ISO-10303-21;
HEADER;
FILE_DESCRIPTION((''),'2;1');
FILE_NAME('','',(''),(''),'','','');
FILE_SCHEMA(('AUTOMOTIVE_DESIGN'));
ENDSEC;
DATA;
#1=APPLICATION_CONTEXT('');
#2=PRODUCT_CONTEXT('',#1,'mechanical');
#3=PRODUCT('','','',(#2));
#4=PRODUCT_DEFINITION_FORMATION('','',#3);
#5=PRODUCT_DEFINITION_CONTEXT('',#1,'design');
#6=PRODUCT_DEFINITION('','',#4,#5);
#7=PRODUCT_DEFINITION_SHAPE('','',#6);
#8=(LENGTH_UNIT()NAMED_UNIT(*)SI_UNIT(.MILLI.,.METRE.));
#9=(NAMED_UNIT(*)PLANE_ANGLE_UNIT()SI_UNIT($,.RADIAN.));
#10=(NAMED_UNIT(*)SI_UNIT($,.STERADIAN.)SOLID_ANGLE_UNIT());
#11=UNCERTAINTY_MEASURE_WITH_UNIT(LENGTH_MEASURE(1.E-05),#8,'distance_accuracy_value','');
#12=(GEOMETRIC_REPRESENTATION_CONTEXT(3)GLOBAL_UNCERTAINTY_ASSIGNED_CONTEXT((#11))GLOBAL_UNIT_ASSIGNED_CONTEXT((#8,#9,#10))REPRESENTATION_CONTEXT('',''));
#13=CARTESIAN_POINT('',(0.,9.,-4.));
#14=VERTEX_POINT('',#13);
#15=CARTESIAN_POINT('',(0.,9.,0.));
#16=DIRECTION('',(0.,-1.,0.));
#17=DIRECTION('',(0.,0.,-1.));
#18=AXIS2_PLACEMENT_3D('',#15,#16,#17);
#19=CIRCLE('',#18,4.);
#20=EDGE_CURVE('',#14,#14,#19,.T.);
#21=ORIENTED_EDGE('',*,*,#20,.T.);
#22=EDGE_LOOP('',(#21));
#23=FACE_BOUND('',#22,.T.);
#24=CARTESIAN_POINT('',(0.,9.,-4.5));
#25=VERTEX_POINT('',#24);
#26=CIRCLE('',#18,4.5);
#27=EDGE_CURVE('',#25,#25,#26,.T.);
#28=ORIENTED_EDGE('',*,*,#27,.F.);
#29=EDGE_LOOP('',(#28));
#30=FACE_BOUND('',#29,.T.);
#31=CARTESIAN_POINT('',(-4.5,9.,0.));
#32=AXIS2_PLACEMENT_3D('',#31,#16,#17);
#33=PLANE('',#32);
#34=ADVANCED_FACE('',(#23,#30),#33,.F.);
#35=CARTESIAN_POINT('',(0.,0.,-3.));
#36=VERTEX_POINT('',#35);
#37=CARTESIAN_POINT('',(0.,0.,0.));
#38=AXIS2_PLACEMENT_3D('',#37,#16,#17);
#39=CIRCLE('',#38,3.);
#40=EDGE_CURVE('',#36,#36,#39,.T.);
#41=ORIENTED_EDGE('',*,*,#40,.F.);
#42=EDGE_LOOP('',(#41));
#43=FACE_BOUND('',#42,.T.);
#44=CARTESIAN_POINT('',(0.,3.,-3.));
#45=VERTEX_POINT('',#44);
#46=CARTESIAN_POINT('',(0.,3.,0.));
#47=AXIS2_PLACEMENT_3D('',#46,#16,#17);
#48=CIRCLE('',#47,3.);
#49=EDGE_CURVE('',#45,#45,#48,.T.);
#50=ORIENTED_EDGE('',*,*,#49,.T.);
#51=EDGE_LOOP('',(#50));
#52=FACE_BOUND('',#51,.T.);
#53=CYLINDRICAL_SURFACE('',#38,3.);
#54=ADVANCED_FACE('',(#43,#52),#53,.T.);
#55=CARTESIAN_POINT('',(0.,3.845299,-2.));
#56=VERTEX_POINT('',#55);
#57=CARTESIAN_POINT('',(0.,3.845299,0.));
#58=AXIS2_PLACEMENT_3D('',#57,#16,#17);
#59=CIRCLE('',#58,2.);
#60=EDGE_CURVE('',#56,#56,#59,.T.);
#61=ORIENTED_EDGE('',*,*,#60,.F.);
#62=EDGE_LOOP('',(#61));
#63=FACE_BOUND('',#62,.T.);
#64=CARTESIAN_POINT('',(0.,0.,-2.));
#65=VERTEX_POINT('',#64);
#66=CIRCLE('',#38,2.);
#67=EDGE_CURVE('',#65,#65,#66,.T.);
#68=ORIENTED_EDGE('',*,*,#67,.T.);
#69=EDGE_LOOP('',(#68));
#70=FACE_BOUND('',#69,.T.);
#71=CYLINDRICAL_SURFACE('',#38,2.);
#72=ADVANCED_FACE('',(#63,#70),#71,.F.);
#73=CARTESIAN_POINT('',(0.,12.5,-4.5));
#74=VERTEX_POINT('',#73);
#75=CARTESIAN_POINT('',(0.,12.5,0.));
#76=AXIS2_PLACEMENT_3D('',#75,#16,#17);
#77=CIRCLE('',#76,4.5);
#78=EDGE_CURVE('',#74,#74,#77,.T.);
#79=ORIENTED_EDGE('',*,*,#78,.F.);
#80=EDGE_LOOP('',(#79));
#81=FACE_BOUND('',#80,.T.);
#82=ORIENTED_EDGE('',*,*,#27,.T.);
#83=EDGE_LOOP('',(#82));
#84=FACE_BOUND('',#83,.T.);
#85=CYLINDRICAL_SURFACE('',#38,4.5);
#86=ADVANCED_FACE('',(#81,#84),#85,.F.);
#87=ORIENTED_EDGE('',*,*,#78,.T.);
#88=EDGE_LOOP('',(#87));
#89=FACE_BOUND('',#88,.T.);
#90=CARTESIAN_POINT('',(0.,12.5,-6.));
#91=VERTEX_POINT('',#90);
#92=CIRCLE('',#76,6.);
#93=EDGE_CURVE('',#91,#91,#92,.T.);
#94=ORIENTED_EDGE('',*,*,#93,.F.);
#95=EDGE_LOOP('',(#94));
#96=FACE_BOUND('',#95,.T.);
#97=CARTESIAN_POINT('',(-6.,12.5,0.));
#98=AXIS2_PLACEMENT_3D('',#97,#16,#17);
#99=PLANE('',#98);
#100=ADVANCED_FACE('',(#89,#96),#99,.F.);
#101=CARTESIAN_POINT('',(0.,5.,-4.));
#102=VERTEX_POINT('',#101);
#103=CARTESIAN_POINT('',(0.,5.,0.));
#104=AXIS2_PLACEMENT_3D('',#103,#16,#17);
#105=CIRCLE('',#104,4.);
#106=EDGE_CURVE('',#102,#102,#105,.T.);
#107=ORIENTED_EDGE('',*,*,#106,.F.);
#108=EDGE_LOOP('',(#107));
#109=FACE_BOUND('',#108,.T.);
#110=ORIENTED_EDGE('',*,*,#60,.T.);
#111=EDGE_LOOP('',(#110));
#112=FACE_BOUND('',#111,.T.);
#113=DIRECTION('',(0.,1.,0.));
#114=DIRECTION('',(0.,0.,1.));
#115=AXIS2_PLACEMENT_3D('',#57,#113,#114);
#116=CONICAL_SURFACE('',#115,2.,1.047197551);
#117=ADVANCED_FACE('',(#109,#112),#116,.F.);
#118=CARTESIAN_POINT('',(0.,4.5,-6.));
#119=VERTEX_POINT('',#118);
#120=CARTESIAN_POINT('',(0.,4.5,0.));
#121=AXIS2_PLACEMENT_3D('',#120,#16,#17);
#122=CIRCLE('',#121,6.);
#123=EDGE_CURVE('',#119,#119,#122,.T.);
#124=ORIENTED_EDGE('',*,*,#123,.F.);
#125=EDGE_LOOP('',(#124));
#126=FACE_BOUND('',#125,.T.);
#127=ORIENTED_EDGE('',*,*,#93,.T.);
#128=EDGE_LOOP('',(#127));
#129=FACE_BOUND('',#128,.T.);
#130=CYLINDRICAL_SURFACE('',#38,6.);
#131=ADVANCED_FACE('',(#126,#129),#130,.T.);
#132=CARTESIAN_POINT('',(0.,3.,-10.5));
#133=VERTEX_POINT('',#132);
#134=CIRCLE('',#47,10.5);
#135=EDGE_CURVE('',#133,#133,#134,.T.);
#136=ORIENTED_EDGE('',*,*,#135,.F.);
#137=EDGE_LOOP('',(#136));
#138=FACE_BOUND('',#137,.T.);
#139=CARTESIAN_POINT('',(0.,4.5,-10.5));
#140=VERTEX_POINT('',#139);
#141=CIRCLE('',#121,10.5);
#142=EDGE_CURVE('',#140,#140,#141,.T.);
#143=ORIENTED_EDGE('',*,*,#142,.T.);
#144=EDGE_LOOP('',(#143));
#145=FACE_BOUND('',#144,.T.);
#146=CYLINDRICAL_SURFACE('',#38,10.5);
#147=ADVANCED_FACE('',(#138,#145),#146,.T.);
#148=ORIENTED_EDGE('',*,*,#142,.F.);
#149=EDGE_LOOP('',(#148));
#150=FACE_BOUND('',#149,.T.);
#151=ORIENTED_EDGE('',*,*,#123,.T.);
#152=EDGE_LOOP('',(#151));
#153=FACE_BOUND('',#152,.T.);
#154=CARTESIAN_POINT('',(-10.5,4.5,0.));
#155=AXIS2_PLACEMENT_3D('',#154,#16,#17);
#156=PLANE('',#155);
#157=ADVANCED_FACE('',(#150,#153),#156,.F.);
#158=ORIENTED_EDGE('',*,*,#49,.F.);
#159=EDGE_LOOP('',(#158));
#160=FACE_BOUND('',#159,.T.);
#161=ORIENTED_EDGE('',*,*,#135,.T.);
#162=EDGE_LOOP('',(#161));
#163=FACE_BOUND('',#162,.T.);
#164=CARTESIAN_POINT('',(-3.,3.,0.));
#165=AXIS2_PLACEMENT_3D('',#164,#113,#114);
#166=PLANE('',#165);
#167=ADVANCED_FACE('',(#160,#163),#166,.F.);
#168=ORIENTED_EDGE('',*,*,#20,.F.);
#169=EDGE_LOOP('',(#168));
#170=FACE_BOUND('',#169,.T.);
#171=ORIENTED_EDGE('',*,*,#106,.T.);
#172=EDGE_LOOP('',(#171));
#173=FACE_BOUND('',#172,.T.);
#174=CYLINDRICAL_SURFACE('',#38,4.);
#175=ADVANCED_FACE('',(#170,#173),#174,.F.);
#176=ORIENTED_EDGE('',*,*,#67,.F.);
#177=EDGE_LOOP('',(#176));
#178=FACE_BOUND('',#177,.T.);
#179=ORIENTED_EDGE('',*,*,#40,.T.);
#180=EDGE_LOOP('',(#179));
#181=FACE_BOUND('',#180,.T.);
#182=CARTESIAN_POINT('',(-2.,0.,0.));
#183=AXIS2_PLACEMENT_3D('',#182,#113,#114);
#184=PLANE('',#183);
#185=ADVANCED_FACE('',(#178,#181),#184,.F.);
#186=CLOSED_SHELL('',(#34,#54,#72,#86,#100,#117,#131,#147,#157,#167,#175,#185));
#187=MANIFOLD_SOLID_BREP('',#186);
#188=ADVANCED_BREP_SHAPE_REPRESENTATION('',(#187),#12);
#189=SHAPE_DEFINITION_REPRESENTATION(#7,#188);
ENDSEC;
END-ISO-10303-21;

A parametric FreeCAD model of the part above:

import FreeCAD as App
import Part
import Sketcher

V = App.Vector
Q = App.Units.Quantity

doc = App.newDocument("Part")
body = doc.addObject("PartDesign::Body", "Body")

sketch1 = body.newObject("Sketcher::SketchObject", "Sketch")
sketch1.AttachmentSupport = (doc.getObject("XY_Plane"), [""])
sketch1.MapMode = "FlatFace"
sketch1.addGeometry([
    Part.LineSegment(V(-2, 0, 0), V(-2, 3.845299, 0)),
    Part.LineSegment(V(-2, 3.845299, 0), V(-4, 5, 0)),
    Part.LineSegment(V(-4, 5, 0), V(-4, 9, 0)),
    Part.LineSegment(V(-4, 9, 0), V(-4.5, 9, 0)),
    Part.LineSegment(V(-4.5, 9, 0), V(-4.5, 12.5, 0)),
    Part.LineSegment(V(-4.5, 12.5, 0), V(-6, 12.5, 0)),
    Part.LineSegment(V(-6, 12.5, 0), V(-6, 4.5, 0)),
    Part.LineSegment(V(-6, 4.5, 0), V(-10.5, 4.5, 0)),
    Part.LineSegment(V(-10.5, 4.5, 0), V(-10.5, 3, 0)),
    Part.LineSegment(V(-10.5, 3, 0), V(-3, 3, 0)),
    Part.LineSegment(V(-3, 3, 0), V(-3, 0, 0)),
    Part.LineSegment(V(-3, 0, 0), V(-2, 0, 0)),
], False)
sketch1.addConstraint([
    Sketcher.Constraint("Coincident", 0, 2, 1, 1),
    Sketcher.Constraint("Coincident", 1, 2, 2, 1),
    Sketcher.Constraint("Coincident", 2, 2, 3, 1),
    Sketcher.Constraint("Coincident", 3, 2, 4, 1),
    Sketcher.Constraint("Coincident", 4, 2, 5, 1),
    Sketcher.Constraint("Coincident", 5, 2, 6, 1),
    Sketcher.Constraint("Coincident", 6, 2, 7, 1),
    Sketcher.Constraint("Coincident", 7, 2, 8, 1),
    Sketcher.Constraint("Coincident", 8, 2, 9, 1),
    Sketcher.Constraint("Coincident", 9, 2, 10, 1),
    Sketcher.Constraint("Coincident", 10, 2, 11, 1),
    Sketcher.Constraint("Coincident", 11, 2, 0, 1),
    Sketcher.Constraint("Vertical", 0),
    Sketcher.Constraint("Vertical", 2),
    Sketcher.Constraint("Horizontal", 3),
    Sketcher.Constraint("Vertical", 4),
    Sketcher.Constraint("Horizontal", 5),
    Sketcher.Constraint("Vertical", 6),
    Sketcher.Constraint("Horizontal", 7),
    Sketcher.Constraint("Vertical", 8),
    Sketcher.Constraint("Horizontal", 9),
    Sketcher.Constraint("Vertical", 10),
    Sketcher.Constraint("Horizontal", 11),
    Sketcher.Constraint("PointOnObject", 10, 2, -1),
    Sketcher.Constraint("Equal", 5, 8),
    Sketcher.Constraint("DistanceX", 11, 1, 11, 2, Q("1 mm")),
    Sketcher.Constraint("DistanceY", 2, 1, 2, 2, Q("4 mm")),
    Sketcher.Constraint("DistanceY", 6, 2, 6, 1, Q("8 mm")),
    Sketcher.Constraint("DistanceY", 10, 2, 10, 1, Q("3 mm")),
    Sketcher.Constraint("Angle", 1, Q("150 deg")),
    Sketcher.Constraint("DistanceX", 3, 2, 3, 1, Q("0.5 mm")),
    Sketcher.Constraint("DistanceX", 5, 2, 5, 1, Q("1.5 mm")),
    Sketcher.Constraint("DistanceX", 7, 2, 7, 1, Q("4.5 mm")),
    Sketcher.Constraint("DistanceX", 9, 1, 9, 2, Q("7.5 mm")),
    Sketcher.Constraint("DistanceY", 4, 1, 4, 2, Q("3.5 mm")),
    Sketcher.Constraint("DistanceX", 0, 2, -1, 1, Q("2 mm")),
])
revolution = body.newObject("PartDesign::Revolution", "Revolution")
revolution.Profile = sketch1
revolution.ReferenceAxis = (sketch1, ["V_Axis"])
revolution.Angle = 360

doc.recompute()
